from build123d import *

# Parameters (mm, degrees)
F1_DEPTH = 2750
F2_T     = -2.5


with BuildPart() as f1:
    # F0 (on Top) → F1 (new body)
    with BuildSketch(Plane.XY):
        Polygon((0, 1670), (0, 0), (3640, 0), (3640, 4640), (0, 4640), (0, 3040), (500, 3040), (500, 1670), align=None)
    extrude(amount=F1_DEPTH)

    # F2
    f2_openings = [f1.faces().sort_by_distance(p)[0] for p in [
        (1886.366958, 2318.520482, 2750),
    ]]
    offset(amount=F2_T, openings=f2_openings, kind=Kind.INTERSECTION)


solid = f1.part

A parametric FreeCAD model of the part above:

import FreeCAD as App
import Part
import Sketcher
Q = App.Units.Quantity


def faces_at(feature, points):
    """Names of the faces that lie closest to the given points."""
    faces = feature.Shape.Faces
    near = lambda p: min(range(len(faces)), key=lambda i: faces[i].distToShape(Part.Vertex(*p))[0])
    return sorted({f"Face{near(p) + 1}" for p in points})

doc = App.newDocument("Part")
params = doc.addObject("Spreadsheet::Sheet", "Params")
for row, (alias, value) in enumerate([
    ("sketch1_width", "3640 mm"),
    ("sketch1_width2", "500 mm"),
    ("sketch1_height", "1670 mm"),
    ("sketch1_height2", "4640 mm"),
    ("sketch1_height3", "1600 mm"),
    ("pad1_length", "2750 mm"),
    ("thickness_wall", "2.5 mm"),
], start=1):
    params.set(f"A{row}", alias)
    params.set(f"B{row}", "=" + value)
    params.setAlias(f"B{row}", alias)

body = doc.addObject("PartDesign::Body", "Body")

# Sketch on XY plane
sketch1 = body.newObject("Sketcher::SketchObject", "Sketch")
sketch1.AttachmentSupport = (doc.getObject("XY_Plane"), [""])
sketch1.MapMode = "FlatFace"
sketch1.addGeometry([
    Part.LineSegment(App.Vector(0, 1670, 0), App.Vector(0, 0, 0)),  # 0
    Part.LineSegment(App.Vector(0, 0, 0), App.Vector(3640, 0, 0)),  # 1
    Part.LineSegment(App.Vector(3640, 0, 0), App.Vector(3640, 4640, 0)),  # 2
    Part.LineSegment(App.Vector(3640, 4640, 0), App.Vector(0, 4640, 0)),  # 3
    Part.LineSegment(App.Vector(0, 4640, 0), App.Vector(0, 3040, 0)),  # 4
    Part.LineSegment(App.Vector(0, 3040, 0), App.Vector(500, 3040, 0)),  # 5
    Part.LineSegment(App.Vector(500, 3040, 0), App.Vector(500, 1670, 0)),  # 6
    Part.LineSegment(App.Vector(500, 1670, 0), App.Vector(0, 1670, 0)),  # 7
], False)
sketch1.addConstraint([
    Sketcher.Constraint("Coincident", 0, 2, 1, 1),
    Sketcher.Constraint("Coincident", 1, 2, 2, 1),
    Sketcher.Constraint("Coincident", 2, 2, 3, 1),
    Sketcher.Constraint("Coincident", 3, 2, 4, 1),
    Sketcher.Constraint("Coincident", 4, 2, 5, 1),
    Sketcher.Constraint("Coincident", 5, 2, 6, 1),
    Sketcher.Constraint("Coincident", 6, 2, 7, 1),
    Sketcher.Constraint("Coincident", 7, 2, 0, 1),
    Sketcher.Constraint("Vertical", 0),
    Sketcher.Constraint("Horizontal", 1),
    Sketcher.Constraint("Vertical", 2),
    Sketcher.Constraint("Horizontal", 3),
    Sketcher.Constraint("Vertical", 4),
    Sketcher.Constraint("Horizontal", 5),
    Sketcher.Constraint("Vertical", 6),
    Sketcher.Constraint("Horizontal", 7),
    Sketcher.Constraint("Coincident", 0, 2, -1, 1),
    Sketcher.Constraint("PointOnObject", 3, 2, -2),
    Sketcher.Constraint("DistanceX", 1, 1, 1, 2, Q("3640 mm")),
    Sketcher.Constraint("DistanceX", 5, 1, 5, 2, Q("500 mm")),
    Sketcher.Constraint("DistanceY", 0, 2, 0, 1, Q("1670 mm")),
    Sketcher.Constraint("DistanceY", 2, 1, 2, 2, Q("4640 mm")),
    Sketcher.Constraint("DistanceY", 4, 2, 4, 1, Q("1600 mm")),
])
sketch1.setExpression("Constraints[18]", "Params.sketch1_width")
sketch1.setExpression("Constraints[19]", "Params.sketch1_width2")
sketch1.setExpression("Constraints[20]", "Params.sketch1_height")
sketch1.setExpression("Constraints[21]", "Params.sketch1_height2")
sketch1.setExpression("Constraints[22]", "Params.sketch1_height3")
pad1 = body.newObject("PartDesign::Pad", "Pad")
pad1.Profile = sketch1
pad1.setExpression("Length", "Params.pad1_length")
doc.recompute()

thickness = body.newObject("PartDesign::Thickness", "Thickness")
thickness.Base = (pad1, faces_at(pad1, [(1820, 2320, 2750)]))
thickness.setExpression("Value", "Params.thickness_wall")
thickness.Reversed = True
thickness.Join = "Intersection"

doc.recompute()
